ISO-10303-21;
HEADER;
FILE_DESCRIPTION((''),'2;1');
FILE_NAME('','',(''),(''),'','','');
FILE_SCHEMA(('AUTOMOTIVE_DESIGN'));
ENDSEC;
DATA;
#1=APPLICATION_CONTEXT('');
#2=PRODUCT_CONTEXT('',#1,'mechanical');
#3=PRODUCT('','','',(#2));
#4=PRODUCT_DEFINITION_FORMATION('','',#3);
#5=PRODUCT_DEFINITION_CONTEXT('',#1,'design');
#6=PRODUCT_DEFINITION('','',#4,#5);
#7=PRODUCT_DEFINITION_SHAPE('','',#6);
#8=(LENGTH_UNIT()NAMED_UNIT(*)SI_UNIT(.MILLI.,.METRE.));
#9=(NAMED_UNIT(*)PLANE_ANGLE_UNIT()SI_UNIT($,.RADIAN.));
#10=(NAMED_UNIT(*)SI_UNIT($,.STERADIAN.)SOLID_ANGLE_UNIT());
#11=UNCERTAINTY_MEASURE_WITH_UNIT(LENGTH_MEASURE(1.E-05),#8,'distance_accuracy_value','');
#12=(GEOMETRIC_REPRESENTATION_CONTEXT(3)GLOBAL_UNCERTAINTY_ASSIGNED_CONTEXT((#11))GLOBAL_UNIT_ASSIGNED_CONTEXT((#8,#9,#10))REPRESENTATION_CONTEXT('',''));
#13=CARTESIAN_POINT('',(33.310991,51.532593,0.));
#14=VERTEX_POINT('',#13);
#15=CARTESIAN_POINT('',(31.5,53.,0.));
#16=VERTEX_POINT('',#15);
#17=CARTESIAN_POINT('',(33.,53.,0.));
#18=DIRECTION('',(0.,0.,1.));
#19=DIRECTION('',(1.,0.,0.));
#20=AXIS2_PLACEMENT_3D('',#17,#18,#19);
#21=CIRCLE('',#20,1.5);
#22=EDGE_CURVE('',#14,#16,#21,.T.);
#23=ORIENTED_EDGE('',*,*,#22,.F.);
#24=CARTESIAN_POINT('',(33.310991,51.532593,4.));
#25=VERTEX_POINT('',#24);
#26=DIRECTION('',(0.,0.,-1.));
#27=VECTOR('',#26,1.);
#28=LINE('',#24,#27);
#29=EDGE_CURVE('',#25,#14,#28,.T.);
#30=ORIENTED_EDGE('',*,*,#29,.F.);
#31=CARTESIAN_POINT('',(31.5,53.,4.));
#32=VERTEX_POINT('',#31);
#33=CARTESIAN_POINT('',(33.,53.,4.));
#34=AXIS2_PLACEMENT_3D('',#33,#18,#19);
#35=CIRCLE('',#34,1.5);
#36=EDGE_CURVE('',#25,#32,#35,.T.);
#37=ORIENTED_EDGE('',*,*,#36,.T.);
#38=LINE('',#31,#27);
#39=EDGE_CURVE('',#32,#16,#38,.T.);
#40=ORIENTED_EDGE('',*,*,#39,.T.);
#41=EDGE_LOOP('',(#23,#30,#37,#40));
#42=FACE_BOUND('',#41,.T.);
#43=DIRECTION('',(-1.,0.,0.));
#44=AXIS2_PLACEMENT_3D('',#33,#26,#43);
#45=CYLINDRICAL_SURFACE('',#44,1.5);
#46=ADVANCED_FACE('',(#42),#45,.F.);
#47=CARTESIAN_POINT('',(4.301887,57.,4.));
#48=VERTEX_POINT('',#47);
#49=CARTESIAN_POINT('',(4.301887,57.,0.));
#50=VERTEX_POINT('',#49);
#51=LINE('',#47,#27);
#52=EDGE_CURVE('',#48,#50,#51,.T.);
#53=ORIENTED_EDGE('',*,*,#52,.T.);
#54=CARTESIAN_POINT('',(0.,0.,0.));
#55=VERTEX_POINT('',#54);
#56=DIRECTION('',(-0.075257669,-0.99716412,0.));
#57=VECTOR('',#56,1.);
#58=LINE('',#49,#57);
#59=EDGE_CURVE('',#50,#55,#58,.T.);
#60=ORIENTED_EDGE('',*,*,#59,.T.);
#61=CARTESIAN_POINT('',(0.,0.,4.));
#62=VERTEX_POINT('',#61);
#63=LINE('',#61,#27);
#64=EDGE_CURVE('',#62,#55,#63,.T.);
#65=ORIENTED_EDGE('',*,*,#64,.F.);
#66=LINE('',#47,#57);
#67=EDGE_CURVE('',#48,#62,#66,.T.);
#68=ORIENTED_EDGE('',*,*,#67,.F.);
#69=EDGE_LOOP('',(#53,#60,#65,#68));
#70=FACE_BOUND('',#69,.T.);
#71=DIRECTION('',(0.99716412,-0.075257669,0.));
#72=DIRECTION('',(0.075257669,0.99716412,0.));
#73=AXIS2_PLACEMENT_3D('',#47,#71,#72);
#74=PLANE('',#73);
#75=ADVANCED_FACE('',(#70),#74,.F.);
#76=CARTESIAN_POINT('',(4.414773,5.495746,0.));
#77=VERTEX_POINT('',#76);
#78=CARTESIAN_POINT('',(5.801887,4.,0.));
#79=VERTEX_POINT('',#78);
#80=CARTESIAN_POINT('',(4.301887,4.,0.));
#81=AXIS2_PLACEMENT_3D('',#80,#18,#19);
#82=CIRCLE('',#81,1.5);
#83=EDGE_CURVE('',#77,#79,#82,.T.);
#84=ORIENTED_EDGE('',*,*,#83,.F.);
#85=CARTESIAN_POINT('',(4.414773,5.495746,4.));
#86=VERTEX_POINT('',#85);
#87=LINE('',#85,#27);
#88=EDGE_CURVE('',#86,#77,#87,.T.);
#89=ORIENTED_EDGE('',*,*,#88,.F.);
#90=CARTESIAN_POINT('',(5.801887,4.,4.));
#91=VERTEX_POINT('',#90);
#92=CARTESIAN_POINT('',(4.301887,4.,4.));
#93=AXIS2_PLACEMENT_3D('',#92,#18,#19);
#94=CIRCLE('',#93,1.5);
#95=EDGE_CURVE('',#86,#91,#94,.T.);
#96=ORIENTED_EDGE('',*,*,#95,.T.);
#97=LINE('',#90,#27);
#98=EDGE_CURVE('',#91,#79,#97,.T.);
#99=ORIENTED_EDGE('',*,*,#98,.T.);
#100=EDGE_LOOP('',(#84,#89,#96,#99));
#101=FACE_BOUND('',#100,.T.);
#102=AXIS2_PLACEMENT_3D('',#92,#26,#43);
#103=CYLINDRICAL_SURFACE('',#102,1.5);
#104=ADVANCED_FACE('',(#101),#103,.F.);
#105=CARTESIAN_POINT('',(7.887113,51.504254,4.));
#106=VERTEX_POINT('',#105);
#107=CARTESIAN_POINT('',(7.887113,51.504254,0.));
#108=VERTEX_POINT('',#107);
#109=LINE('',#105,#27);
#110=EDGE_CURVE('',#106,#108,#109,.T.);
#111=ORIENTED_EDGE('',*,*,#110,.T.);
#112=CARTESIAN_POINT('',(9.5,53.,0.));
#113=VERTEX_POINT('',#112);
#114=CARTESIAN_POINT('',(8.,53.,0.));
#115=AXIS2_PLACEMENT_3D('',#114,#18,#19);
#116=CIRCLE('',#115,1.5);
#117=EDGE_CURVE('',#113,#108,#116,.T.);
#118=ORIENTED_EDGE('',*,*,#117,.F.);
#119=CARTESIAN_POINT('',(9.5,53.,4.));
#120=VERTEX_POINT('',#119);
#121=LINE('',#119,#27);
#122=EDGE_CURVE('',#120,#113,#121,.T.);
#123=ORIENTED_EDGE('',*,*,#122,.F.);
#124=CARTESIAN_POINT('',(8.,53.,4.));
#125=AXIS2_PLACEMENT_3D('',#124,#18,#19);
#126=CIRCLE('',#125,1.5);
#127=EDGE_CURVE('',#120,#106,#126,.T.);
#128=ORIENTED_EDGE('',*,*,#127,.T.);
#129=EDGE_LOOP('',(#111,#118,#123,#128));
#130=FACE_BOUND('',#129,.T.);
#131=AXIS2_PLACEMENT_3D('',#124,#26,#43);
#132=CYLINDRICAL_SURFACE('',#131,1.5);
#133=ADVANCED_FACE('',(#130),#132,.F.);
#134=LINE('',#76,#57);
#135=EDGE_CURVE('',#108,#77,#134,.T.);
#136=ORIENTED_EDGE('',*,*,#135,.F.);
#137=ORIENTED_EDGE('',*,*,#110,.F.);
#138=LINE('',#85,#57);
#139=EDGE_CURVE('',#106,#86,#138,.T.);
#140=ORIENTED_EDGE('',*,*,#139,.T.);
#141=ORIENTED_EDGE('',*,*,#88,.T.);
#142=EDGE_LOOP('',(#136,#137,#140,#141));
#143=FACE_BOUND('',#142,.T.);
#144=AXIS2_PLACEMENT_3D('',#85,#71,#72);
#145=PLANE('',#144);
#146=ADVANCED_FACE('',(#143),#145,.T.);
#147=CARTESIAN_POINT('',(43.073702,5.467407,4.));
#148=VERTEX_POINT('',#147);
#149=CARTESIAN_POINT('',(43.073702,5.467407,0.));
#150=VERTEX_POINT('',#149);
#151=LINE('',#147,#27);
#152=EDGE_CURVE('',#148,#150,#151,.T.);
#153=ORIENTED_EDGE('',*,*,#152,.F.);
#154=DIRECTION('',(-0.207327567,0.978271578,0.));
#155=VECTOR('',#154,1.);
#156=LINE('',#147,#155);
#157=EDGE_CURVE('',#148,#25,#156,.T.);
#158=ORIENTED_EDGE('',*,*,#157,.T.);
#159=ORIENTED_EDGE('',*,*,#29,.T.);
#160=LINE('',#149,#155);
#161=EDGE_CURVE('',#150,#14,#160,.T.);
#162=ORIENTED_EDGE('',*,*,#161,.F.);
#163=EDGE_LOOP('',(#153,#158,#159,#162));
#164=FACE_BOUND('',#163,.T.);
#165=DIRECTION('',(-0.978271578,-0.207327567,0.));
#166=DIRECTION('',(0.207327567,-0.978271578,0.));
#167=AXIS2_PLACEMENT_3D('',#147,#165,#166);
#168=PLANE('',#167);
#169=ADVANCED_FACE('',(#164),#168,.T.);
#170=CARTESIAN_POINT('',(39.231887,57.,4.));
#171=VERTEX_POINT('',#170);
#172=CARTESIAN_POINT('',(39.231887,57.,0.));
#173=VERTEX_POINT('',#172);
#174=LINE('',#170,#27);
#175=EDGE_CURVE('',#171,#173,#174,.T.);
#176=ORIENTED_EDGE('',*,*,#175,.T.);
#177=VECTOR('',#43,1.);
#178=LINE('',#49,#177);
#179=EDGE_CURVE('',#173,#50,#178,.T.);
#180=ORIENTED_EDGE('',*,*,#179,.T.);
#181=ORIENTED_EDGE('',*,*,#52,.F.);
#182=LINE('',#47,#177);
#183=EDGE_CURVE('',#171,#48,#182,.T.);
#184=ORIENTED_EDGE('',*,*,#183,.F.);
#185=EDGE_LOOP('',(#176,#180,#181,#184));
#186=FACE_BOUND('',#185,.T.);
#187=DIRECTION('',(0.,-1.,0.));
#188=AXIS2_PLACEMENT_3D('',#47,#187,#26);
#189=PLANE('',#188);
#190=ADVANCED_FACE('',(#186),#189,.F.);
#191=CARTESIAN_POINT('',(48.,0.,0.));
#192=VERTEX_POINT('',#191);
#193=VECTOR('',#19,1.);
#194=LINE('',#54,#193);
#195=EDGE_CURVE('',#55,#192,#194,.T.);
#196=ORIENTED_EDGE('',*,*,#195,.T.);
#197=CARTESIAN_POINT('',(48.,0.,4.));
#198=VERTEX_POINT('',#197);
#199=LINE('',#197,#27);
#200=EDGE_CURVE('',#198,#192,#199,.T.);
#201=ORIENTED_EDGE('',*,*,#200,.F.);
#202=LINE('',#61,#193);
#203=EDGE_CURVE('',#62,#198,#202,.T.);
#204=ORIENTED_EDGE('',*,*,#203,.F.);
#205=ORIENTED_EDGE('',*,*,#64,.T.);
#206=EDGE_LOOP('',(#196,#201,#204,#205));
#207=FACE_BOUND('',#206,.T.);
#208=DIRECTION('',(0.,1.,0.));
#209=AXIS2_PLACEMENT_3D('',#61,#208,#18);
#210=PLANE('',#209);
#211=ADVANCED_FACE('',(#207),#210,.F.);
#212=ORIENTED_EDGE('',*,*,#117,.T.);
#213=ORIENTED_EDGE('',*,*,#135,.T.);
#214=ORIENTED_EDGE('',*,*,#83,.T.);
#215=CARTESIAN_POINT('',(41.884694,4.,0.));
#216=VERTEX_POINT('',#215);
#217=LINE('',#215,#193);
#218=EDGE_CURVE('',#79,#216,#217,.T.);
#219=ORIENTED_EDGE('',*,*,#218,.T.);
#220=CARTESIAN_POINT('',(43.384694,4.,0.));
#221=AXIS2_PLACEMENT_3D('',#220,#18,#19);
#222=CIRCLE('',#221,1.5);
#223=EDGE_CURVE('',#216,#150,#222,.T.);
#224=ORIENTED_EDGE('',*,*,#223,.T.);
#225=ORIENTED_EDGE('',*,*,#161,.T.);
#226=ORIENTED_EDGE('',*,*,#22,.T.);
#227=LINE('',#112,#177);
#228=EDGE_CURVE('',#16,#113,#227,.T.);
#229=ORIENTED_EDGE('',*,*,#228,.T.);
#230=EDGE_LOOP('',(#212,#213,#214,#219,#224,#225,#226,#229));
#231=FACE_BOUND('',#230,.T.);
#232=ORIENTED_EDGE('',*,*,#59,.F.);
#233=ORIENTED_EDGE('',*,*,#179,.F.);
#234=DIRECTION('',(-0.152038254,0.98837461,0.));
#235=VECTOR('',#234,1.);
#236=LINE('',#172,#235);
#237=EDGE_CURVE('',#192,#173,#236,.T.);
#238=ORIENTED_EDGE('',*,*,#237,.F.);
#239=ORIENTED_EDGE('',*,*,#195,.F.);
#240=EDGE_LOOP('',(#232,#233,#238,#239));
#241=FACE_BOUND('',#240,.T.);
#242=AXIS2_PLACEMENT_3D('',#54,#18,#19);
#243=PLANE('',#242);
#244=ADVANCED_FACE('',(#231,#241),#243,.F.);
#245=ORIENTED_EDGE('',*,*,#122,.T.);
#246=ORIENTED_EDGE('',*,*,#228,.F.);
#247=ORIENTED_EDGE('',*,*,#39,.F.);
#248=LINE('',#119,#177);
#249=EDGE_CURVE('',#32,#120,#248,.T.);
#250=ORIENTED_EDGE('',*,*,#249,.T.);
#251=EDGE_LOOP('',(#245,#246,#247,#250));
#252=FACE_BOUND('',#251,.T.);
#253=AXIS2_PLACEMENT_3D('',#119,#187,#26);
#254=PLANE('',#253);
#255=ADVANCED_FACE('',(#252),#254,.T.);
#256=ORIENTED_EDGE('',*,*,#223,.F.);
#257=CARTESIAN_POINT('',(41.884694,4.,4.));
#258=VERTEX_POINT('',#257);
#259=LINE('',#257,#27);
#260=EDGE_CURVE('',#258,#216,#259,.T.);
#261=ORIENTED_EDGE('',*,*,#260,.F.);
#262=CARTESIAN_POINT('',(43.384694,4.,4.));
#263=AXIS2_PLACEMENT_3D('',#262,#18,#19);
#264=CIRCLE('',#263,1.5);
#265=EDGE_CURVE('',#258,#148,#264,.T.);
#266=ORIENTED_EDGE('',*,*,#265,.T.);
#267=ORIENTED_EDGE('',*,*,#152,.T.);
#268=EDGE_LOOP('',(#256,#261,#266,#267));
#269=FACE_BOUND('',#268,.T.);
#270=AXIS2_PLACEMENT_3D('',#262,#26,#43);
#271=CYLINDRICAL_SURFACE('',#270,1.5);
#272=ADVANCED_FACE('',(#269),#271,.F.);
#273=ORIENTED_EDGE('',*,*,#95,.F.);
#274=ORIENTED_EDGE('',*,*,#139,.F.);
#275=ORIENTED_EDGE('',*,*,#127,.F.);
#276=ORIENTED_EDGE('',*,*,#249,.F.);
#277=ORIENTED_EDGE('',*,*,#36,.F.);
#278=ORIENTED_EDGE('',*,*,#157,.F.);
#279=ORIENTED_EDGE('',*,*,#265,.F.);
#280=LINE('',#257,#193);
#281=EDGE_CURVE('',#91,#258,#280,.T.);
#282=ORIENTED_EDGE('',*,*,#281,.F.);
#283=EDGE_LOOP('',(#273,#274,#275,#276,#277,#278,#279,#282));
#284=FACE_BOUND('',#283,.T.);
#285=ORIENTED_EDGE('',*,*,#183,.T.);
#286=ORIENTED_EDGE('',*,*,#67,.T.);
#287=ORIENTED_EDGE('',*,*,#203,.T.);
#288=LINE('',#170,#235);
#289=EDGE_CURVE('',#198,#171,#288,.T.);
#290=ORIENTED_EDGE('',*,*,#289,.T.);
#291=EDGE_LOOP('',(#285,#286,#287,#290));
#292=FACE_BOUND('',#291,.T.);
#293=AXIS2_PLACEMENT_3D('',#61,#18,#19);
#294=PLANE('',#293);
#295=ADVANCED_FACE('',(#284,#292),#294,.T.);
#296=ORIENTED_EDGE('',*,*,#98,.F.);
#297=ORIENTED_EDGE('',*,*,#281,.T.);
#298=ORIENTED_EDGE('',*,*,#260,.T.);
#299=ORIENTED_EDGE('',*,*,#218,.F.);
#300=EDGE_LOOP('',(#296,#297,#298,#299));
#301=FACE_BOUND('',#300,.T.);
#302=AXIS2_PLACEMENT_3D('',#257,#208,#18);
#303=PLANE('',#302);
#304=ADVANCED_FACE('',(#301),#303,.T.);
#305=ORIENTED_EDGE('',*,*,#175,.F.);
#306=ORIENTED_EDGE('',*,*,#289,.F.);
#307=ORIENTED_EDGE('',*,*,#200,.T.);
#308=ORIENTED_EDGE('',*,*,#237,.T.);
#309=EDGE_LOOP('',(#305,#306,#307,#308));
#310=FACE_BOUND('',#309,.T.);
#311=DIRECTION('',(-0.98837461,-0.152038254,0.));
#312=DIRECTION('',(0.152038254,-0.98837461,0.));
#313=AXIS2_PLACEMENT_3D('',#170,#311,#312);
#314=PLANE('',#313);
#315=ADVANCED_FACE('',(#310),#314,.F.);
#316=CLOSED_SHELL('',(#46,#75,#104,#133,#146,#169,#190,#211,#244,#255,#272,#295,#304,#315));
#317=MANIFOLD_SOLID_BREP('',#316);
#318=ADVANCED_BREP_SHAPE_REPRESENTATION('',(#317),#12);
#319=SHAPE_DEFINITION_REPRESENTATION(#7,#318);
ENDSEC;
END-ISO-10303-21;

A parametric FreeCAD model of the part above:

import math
import FreeCAD as App
import Part
import Sketcher

V = App.Vector


def add_polygon(sketch, points):
    """Adds a closed chain of lines whose ends are joined by coincident constraints."""
    first, n = sketch.GeometryCount, len(points)
    for a, b in zip(points, points[1:] + points[:1]):
        sketch.addGeometry(Part.LineSegment(App.Vector(*a, 0), App.Vector(*b, 0)), False)
    for i in range(n):
        sketch.addConstraint(Sketcher.Constraint("Coincident", first + i, 2, first + (i + 1) % n, 1))

doc = App.newDocument("Part")
body = doc.addObject("PartDesign::Body", "Body")

sketch1 = body.newObject("Sketcher::SketchObject", "Sketch")
sketch1.AttachmentSupport = (doc.getObject("XY_Plane"), [""])
sketch1.MapMode = "FlatFace"
add_polygon(sketch1, [(0, 0), (48, 0), (39.2, 57), (4.3, 57)])
sketch1.addGeometry(Part.ArcOfCircle(Part.Circle(V(4.3, 4, 0), V(0, 0, 1), 1.5), math.radians(86), math.radians(360)), False)
sketch1.addGeometry(Part.LineSegment(V(4.4, 5.5, 0), V(7.9, 51.5, 0)), False)
sketch1.addGeometry(Part.ArcOfCircle(Part.Circle(V(8, 53, 0), V(0, 0, 1), 1.5), math.radians(0), math.radians(266)), False)
sketch1.addGeometry(Part.LineSegment(V(9.5, 53, 0), V(31.5, 53, 0)), False)
sketch1.addGeometry(Part.ArcOfCircle(Part.Circle(V(33, 53, 0), V(0, 0, 1), 1.5), math.radians(-78), math.radians(180)), False)
sketch1.addGeometry(Part.LineSegment(V(33.3, 51.5, 0), V(43.1, 5.5, 0)), False)
sketch1.addGeometry(Part.ArcOfCircle(Part.Circle(V(43.4, 4, 0), V(0, 0, 1), 1.5), math.radians(180), math.radians(462)), False)
sketch1.addGeometry(Part.LineSegment(V(41.9, 4, 0), V(5.8, 4, 0)), False)
sketch1.addConstraint(Sketcher.Constraint("Coincident", 4, 1, 5, 1))
sketch1.addConstraint(Sketcher.Constraint("Coincident", 5, 2, 6, 2))
sketch1.addConstraint(Sketcher.Constraint("Coincident", 6, 1, 7, 1))
sketch1.addConstraint(Sketcher.Constraint("Coincident", 7, 2, 8, 2))
sketch1.addConstraint(Sketcher.Constraint("Coincident", 8, 1, 9, 1))
sketch1.addConstraint(Sketcher.Constraint("Coincident", 9, 2, 10, 2))
sketch1.addConstraint(Sketcher.Constraint("Coincident", 10, 1, 11, 1))
sketch1.addConstraint(Sketcher.Constraint("Coincident", 11, 2, 4, 2))
sketch1.addConstraint(Sketcher.Constraint("Horizontal", 0))
sketch1.addConstraint(Sketcher.Constraint("Horizontal", 2))
sketch1.addConstraint(Sketcher.Constraint("Horizontal", 7))
sketch1.addConstraint(Sketcher.Constraint("Horizontal", 11))
sketch1.addConstraint(Sketcher.Constraint("Coincident", 3, 2, -1, 1))
sketch1.addConstraint(Sketcher.Constraint("Equal", 4, 6))
sketch1.addConstraint(Sketcher.Constraint("Equal", 6, 8))
sketch1.addConstraint(Sketcher.Constraint("Equal", 8, 10))
sketch1.addConstraint(Sketcher.Constraint("Parallel", 3, 5))
sketch1.addConstraint(Sketcher.Constraint("Horizontal", 6, 3, 8, 3))
sketch1.addConstraint(Sketcher.Constraint("Horizontal", 4, 3, 10, 3))
sketch1.addConstraint(Sketcher.Constraint("Horizontal", 8, 3, 6, 1))
sketch1.addConstraint(Sketcher.Constraint("Horizontal", 4, 3, 10, 1))
sketch1.addConstraint(Sketcher.Constraint("Vertical", 4, 3, 2, 2))
sketch1.addConstraint(Sketcher.Constraint("Radius", 4, 1.5))
sketch1.addConstraint(Sketcher.Constraint("DistanceX", 0, 1, 0, 2, 48.0))
sketch1.addConstraint(Sketcher.Constraint("DistanceX", 7, 1, 7, 2, 22.0))
sketch1.addConstraint(Sketcher.Constraint("DistanceY", -1, 1, 4, 3, 4.0))
sketch1.addConstraint(Sketcher.Constraint("DistanceX", -1, 1, 6, 3, 8.0))
sketch1.addConstraint(Sketcher.Constraint("DistanceY", -1, 1, 6, 3, 53.0))
sketch1.addConstraint(Sketcher.Constraint("DistanceY", -1, 1, 1, 2, 57.0))
sketch1.addConstraint(Sketcher.Constraint("DistanceX", 2, 2, 2, 1, 34.93))
sketch1.addConstraint(Sketcher.Constraint("Distance", 1, 57.670441))
sketch1.addConstraint(Sketcher.Constraint("Distance", 9, 47.088341))
sketch1.addConstraint(Sketcher.Constraint("DistanceX", -1, 1, 8, 1, 33.310991))
sketch1.addConstraint(Sketcher.Constraint("DistanceX", 4, 1, 10, 3, 38.969921))
sketch1.addConstraint(Sketcher.Constraint("DistanceX", 9, 2, 10, 3, 0.310991))
pad1 = body.newObject("PartDesign::Pad", "Pad")
pad1.Profile = sketch1
pad1.Length = 4

doc.recompute()
